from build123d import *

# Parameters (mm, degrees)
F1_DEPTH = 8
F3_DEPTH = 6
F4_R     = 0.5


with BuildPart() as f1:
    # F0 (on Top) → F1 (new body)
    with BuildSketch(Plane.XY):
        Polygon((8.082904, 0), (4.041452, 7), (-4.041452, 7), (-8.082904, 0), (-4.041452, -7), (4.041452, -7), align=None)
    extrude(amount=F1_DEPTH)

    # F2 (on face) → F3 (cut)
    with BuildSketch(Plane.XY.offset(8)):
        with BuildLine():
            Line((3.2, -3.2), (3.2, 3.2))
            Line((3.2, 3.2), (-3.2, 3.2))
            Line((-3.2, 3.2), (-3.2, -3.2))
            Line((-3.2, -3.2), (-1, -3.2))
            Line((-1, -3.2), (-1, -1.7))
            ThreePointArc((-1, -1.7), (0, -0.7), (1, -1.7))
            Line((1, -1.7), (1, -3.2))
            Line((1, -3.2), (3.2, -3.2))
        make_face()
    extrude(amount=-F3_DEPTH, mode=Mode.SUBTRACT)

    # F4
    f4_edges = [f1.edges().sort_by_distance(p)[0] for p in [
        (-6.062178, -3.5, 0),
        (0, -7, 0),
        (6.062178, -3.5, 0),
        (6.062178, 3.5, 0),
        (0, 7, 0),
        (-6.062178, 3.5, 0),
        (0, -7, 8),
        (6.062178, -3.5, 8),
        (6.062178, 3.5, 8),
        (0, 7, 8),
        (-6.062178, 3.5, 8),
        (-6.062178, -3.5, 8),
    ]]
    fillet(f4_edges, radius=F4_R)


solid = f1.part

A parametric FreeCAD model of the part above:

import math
import FreeCAD as App
import Part
import Sketcher
from FreeCAD import Vector
Q = App.Units.Quantity


def edges_at(feature, points):
    """Names of the edges that pass closest to the given points."""
    edges = feature.Shape.Edges
    near = lambda p: min(range(len(edges)), key=lambda i: edges[i].distToShape(Part.Vertex(*p))[0])
    return sorted({f"Edge{near(p) + 1}" for p in points})

doc = App.newDocument("Part")
body = doc.addObject("PartDesign::Body", "Body")

sketch1 = body.newObject("Sketcher::SketchObject", "Sketch")
sketch1.AttachmentSupport = (doc.getObject("XY_Plane"), [""])
sketch1.MapMode = "FlatFace"
sketch1.addGeometry(Part.LineSegment(Vector(8, 0, 0), Vector(4, 7, 0)), False)
sketch1.addGeometry(Part.LineSegment(Vector(4, 7, 0), Vector(-4, 7, 0)), False)
sketch1.addGeometry(Part.LineSegment(Vector(-4, 7, 0), Vector(-8, 0, 0)), False)
sketch1.addGeometry(Part.LineSegment(Vector(-8, 0, 0), Vector(-4, -7, 0)), False)
sketch1.addGeometry(Part.LineSegment(Vector(-4, -7, 0), Vector(4, -7, 0)), False)
sketch1.addGeometry(Part.LineSegment(Vector(4, -7, 0), Vector(8, 0, 0)), False)
sketch1.addConstraint(Sketcher.Constraint("Coincident", 0, 2, 1, 1))
sketch1.addConstraint(Sketcher.Constraint("Coincident", 1, 2, 2, 1))
sketch1.addConstraint(Sketcher.Constraint("Coincident", 2, 2, 3, 1))
sketch1.addConstraint(Sketcher.Constraint("Coincident", 3, 2, 4, 1))
sketch1.addConstraint(Sketcher.Constraint("Coincident", 4, 2, 5, 1))
sketch1.addConstraint(Sketcher.Constraint("Coincident", 5, 2, 0, 1))
sketch1.addConstraint(Sketcher.Constraint("Horizontal", 1))
sketch1.addConstraint(Sketcher.Constraint("Horizontal", 4))
sketch1.addConstraint(Sketcher.Constraint("Symmetric", 0, 2, 3, 2, -1, 1))
sketch1.addConstraint(Sketcher.Constraint("Symmetric", 2, 2, 5, 2, -1, 1))
sketch1.addConstraint(Sketcher.Constraint("PointOnObject", 2, 2, -1))
sketch1.addConstraint(Sketcher.Constraint("Parallel", 2, 5))
sketch1.addConstraint(Sketcher.Constraint("Vertical", 1, 2, 3, 2))
sketch1.addConstraint(Sketcher.Constraint("Angle", 0, Q("120.000001 deg")))
sketch1.addConstraint(Sketcher.Constraint("DistanceY", -1, 1, 0, 2, 7.0))
sketch1.addConstraint(Sketcher.Constraint("DistanceX", 1, 2, 1, 1, 8.082904))
pad1 = body.newObject("PartDesign::Pad", "Pad")
pad1.Profile = sketch1
pad1.Length = 8

sketch2 = body.newObject("Sketcher::SketchObject", "Sketch001")
sketch2.AttachmentSupport = (doc.getObject("XY_Plane"), [""])
sketch2.MapMode = "FlatFace"
sketch2.AttachmentOffset = App.Placement(Vector(0, 0, 8), App.Rotation())
sketch2.addGeometry(Part.LineSegment(Vector(3.2, -3.2, 0), Vector(3.2, 3.2, 0)), False)
sketch2.addGeometry(Part.LineSegment(Vector(3.2, 3.2, 0), Vector(-3.2, 3.2, 0)), False)
sketch2.addGeometry(Part.LineSegment(Vector(-3.2, 3.2, 0), Vector(-3.2, -3.2, 0)), False)
sketch2.addGeometry(Part.LineSegment(Vector(-3.2, -3.2, 0), Vector(-1, -3.2, 0)), False)
sketch2.addGeometry(Part.LineSegment(Vector(-1, -3.2, 0), Vector(-1, -1.7, 0)), False)
sketch2.addGeometry(Part.ArcOfCircle(Part.Circle(Vector(0, -1.7, 0), Vector(0, 0, 1), 1), math.radians(0), math.radians(180)), False)
sketch2.addGeometry(Part.LineSegment(Vector(1, -1.7, 0), Vector(1, -3.2, 0)), False)
sketch2.addGeometry(Part.LineSegment(Vector(1, -3.2, 0), Vector(3.2, -3.2, 0)), False)
sketch2.addConstraint(Sketcher.Constraint("Coincident", 0, 2, 1, 1))
sketch2.addConstraint(Sketcher.Constraint("Coincident", 1, 2, 2, 1))
sketch2.addConstraint(Sketcher.Constraint("Coincident", 2, 2, 3, 1))
sketch2.addConstraint(Sketcher.Constraint("Coincident", 3, 2, 4, 1))
sketch2.addConstraint(Sketcher.Constraint("Tangent", 4, 2, 5, 2))
sketch2.addConstraint(Sketcher.Constraint("Tangent", 5, 1, 6, 1))
sketch2.addConstraint(Sketcher.Constraint("Coincident", 6, 2, 7, 1))
sketch2.addConstraint(Sketcher.Constraint("Coincident", 7, 2, 0, 1))
sketch2.addConstraint(Sketcher.Constraint("Vertical", 0))
sketch2.addConstraint(Sketcher.Constraint("Horizontal", 1))
sketch2.addConstraint(Sketcher.Constraint("Vertical", 2))
sketch2.addConstraint(Sketcher.Constraint("Horizontal", 3))
sketch2.addConstraint(Sketcher.Constraint("Vertical", 4))
sketch2.addConstraint(Sketcher.Constraint("Vertical", 6))
sketch2.addConstraint(Sketcher.Constraint("Horizontal", 7))
sketch2.addConstraint(Sketcher.Constraint("Symmetric", 0, 2, 2, 2, -1, 1))
sketch2.addConstraint(Sketcher.Constraint("Symmetric", 3, 2, 6, 2, -2))
sketch2.addConstraint(Sketcher.Constraint("Equal", 1, 0))
sketch2.addConstraint(Sketcher.Constraint("Radius", 5, 1.0))
sketch2.addConstraint(Sketcher.Constraint("DistanceX", 1, 2, 1, 1, 6.4))
sketch2.addConstraint(Sketcher.Constraint("DistanceY", 4, 1, 4, 2, 1.5))
pocket1 = body.newObject("PartDesign::Pocket", "Pocket")
pocket1.Profile = sketch2
pocket1.Length = 6
doc.recompute()

fillet = body.newObject("PartDesign::Fillet", "Fillet")
fillet.Base = (pocket1, edges_at(pocket1, [
    (-6.062, -3.5, 0),
    (0, -7, 0),
    (6.062, -3.5, 0),
    (6.062, 3.5, 0),
    (0, 7, 0),
    (-6.062, 3.5, 0),
    (0, -7, 8),
    (6.062, -3.5, 8),
    (6.062, 3.5, 8),
    (0, 7, 8),
    (-6.062, 3.5, 8),
    (-6.062, -3.5, 8),
]))
fillet.Radius = 0.5

doc.recompute()
